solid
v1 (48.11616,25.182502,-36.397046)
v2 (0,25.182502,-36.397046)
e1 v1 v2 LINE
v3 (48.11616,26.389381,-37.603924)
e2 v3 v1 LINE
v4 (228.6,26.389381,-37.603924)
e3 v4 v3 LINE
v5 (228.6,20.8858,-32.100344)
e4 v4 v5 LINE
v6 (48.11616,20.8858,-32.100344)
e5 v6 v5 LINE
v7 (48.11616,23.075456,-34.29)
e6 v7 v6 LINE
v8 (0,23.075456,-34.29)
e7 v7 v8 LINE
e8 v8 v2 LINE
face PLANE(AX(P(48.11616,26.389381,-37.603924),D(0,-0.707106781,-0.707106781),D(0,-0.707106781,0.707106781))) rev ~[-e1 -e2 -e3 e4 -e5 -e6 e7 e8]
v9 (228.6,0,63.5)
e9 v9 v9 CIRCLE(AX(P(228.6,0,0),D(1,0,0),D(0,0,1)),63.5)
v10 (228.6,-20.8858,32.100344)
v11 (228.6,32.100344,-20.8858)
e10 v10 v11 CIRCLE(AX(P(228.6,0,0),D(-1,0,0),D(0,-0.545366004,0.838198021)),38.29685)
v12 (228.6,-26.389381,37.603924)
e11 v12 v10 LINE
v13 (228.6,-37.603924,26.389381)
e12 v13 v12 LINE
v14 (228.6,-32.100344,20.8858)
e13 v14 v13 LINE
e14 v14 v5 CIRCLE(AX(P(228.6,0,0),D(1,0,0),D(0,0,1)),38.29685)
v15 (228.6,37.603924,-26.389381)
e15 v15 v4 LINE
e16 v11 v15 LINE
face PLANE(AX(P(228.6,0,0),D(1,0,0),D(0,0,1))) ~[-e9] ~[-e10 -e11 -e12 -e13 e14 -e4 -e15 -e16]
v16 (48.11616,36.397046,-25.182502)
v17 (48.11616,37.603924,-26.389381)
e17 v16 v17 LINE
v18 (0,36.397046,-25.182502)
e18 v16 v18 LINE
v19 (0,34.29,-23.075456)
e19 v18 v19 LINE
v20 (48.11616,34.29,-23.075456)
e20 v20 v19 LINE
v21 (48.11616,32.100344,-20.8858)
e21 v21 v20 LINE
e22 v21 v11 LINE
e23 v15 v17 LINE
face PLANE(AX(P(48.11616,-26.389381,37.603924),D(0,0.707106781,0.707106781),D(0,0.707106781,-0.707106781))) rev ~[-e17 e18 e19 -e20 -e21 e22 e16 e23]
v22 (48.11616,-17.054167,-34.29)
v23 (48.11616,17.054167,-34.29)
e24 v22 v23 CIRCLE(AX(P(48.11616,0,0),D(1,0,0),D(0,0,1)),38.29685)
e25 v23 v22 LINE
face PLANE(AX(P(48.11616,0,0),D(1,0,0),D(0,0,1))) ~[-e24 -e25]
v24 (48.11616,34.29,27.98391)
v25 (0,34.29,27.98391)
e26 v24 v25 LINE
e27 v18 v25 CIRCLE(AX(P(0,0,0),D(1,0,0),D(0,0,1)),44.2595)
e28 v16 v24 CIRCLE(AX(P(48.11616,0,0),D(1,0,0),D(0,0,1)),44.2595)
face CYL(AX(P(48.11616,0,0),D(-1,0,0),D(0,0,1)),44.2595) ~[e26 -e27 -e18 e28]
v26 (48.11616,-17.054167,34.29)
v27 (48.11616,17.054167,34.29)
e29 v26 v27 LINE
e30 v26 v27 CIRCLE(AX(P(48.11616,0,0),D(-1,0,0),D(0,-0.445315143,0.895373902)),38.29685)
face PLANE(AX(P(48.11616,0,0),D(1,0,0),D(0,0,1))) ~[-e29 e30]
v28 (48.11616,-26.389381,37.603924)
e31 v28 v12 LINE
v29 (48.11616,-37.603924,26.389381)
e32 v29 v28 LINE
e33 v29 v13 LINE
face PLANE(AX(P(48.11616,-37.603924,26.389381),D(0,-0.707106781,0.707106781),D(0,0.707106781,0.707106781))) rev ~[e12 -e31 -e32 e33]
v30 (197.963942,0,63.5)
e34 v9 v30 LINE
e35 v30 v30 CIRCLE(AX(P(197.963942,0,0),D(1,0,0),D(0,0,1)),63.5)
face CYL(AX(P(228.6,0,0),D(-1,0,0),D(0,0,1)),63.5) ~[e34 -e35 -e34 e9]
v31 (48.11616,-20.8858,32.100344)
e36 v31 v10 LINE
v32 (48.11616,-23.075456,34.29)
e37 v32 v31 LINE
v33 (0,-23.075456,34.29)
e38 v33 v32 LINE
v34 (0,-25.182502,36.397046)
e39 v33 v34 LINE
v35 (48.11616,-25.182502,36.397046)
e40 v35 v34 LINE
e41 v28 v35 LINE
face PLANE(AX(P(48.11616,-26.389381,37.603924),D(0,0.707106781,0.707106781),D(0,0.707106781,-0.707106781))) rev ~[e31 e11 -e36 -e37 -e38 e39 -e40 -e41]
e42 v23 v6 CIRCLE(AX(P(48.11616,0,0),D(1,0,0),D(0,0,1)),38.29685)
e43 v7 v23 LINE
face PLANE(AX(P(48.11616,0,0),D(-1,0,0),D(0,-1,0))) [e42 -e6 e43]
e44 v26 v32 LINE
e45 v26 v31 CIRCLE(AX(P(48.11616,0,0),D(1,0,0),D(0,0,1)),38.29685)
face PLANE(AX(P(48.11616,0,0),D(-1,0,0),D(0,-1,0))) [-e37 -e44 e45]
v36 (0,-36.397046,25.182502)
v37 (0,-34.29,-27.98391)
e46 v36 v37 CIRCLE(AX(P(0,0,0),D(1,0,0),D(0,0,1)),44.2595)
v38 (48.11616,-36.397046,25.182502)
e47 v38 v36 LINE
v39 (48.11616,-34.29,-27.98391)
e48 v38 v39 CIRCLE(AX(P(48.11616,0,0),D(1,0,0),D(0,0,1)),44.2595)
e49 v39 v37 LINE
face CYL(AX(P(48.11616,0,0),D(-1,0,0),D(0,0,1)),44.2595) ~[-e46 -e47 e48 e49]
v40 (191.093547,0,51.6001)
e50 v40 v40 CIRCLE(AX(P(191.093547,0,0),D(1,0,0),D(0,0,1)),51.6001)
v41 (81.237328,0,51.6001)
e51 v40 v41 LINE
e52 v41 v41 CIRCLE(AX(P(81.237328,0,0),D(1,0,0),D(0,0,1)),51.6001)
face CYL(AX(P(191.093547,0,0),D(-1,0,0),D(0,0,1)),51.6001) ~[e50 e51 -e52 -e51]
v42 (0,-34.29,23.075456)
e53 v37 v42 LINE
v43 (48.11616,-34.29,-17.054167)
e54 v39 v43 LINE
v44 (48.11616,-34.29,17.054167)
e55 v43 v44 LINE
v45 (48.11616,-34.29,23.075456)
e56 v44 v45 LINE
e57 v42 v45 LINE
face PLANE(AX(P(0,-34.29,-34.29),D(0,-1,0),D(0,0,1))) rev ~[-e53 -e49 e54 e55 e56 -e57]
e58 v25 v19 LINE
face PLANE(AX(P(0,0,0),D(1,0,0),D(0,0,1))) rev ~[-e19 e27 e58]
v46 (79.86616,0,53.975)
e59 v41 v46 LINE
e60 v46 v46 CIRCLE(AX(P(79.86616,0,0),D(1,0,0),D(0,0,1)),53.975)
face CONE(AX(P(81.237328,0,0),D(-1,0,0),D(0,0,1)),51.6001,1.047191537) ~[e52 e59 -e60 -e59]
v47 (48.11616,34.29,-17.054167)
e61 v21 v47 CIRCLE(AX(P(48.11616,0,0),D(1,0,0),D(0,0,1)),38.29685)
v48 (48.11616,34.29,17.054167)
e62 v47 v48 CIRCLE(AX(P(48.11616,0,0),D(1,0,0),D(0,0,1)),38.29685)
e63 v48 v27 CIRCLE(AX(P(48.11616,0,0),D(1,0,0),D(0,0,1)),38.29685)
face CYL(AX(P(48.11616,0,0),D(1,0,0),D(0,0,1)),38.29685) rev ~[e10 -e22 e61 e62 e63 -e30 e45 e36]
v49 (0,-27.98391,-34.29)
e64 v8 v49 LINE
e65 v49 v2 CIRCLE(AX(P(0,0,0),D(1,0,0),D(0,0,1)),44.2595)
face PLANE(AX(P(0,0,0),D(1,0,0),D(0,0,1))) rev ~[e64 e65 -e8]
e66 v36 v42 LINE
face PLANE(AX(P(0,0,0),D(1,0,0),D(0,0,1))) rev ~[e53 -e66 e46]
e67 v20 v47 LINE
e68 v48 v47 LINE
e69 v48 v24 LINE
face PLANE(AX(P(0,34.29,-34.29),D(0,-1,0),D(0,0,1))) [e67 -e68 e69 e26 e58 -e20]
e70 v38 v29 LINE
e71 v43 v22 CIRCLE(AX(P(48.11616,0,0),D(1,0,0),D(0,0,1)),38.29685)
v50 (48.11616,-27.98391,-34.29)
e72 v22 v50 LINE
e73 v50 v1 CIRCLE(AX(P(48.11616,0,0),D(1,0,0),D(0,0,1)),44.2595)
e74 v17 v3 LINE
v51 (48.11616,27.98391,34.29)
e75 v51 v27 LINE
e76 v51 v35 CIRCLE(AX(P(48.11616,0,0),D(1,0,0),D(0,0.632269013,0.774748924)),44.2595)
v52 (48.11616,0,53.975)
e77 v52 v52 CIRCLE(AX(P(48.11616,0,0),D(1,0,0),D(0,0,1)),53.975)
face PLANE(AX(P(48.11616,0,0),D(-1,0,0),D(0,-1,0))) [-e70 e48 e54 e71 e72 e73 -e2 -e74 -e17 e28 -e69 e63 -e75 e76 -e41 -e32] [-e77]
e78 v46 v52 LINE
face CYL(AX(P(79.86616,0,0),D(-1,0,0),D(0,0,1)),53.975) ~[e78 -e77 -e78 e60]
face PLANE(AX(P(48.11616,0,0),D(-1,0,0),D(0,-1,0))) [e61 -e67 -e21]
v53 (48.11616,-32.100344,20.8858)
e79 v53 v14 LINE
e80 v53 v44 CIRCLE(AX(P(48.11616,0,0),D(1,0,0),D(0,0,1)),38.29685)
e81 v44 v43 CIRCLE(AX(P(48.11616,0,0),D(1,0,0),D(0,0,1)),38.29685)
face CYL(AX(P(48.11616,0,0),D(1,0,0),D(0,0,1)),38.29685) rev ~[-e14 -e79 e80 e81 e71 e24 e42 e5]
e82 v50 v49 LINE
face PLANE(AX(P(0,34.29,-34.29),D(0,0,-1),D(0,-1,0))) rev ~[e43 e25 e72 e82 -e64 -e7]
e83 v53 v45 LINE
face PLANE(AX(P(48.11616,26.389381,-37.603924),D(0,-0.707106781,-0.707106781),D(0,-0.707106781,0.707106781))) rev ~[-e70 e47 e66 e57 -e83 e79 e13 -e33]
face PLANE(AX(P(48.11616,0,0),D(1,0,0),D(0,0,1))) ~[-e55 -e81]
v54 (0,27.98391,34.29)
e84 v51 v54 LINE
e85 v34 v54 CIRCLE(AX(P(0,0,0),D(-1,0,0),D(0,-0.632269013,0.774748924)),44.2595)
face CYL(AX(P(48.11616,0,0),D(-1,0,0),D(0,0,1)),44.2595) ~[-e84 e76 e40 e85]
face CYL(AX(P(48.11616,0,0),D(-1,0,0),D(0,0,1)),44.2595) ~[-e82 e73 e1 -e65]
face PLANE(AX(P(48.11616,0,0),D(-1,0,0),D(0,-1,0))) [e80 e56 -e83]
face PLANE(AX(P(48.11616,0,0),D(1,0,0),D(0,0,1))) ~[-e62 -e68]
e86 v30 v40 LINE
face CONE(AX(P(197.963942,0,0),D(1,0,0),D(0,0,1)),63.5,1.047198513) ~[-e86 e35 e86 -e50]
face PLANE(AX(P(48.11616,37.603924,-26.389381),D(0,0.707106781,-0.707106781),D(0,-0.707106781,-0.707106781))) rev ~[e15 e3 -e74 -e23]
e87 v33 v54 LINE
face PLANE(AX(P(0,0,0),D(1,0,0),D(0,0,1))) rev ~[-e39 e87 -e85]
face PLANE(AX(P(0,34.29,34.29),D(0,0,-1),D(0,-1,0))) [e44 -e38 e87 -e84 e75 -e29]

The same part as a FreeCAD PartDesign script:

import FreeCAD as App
import Part
import Sketcher

V = App.Vector
Q = App.Units.Quantity


def add_polygon(sketch, points):
    """Adds a closed chain of lines whose ends are joined by coincident constraints."""
    first, n = sketch.GeometryCount, len(points)
    for a, b in zip(points, points[1:] + points[:1]):
        sketch.addGeometry(Part.LineSegment(App.Vector(*a, 0), App.Vector(*b, 0)), False)
    for i in range(n):
        sketch.addConstraint(Sketcher.Constraint("Coincident", first + i, 2, first + (i + 1) % n, 1))

doc = App.newDocument("Part")
body = doc.addObject("PartDesign::Body", "Body")

sketch1 = body.newObject("Sketcher::SketchObject", "Sketch")
sketch1.AttachmentSupport = (doc.getObject("XZ_Plane"), [""])
sketch1.MapMode = "FlatFace"
add_polygon(sketch1, [(228.6, 38.3), (228.6, 63.5), (198, 63.5), (191.1, 51.6), (81.2, 51.6), (79.9, 54), (48.1, 54), (48.1, 44.3), (0, 44.3), (0, 34.3), (48.1, 34.3), (48.1, 38.3)])
sketch1.addConstraint(Sketcher.Constraint("Vertical", 0))
sketch1.addConstraint(Sketcher.Constraint("Horizontal", 1))
sketch1.addConstraint(Sketcher.Constraint("Horizontal", 3))
sketch1.addConstraint(Sketcher.Constraint("Horizontal", 5))
sketch1.addConstraint(Sketcher.Constraint("Vertical", 6))
sketch1.addConstraint(Sketcher.Constraint("Horizontal", 7))
sketch1.addConstraint(Sketcher.Constraint("Vertical", 8))
sketch1.addConstraint(Sketcher.Constraint("Horizontal", 9))
sketch1.addConstraint(Sketcher.Constraint("Vertical", 10))
sketch1.addConstraint(Sketcher.Constraint("Horizontal", 11))
sketch1.addConstraint(Sketcher.Constraint("PointOnObject", 7, 2, -2))
sketch1.addConstraint(Sketcher.Constraint("Vertical", 6, 2, 9, 2))
sketch1.addConstraint(Sketcher.Constraint("DistanceX", -1, 1, 0, 2, Q("9 in")))
sketch1.addConstraint(Sketcher.Constraint("DistanceX", 5, 2, 5, 1, Q("1.25 in")))
sketch1.addConstraint(Sketcher.Constraint("DistanceY", -1, 1, 0, 2, Q("2.5 in")))
sketch1.addConstraint(Sketcher.Constraint("DistanceY", -1, 1, 8, 2, Q("1.35 in")))
sketch1.addConstraint(Sketcher.Constraint("DistanceY", 6, 2, 6, 1, Q("0.3825 in")))
sketch1.addConstraint(Sketcher.Constraint("DistanceY", 8, 2, 8, 1, Q("0.3925 in")))
sketch1.addConstraint(Sketcher.Constraint("DistanceY", 6, 2, 3, 2, Q("0.289 in")))
sketch1.addConstraint(Sketcher.Constraint("DistanceX", 3, 2, 3, 1, 109.856219))
sketch1.addConstraint(Sketcher.Constraint("DistanceX", 7, 2, 7, 1, 48.11616))
sketch1.addConstraint(Sketcher.Constraint("DistanceY", 0, 1, 0, 2, 25.20315))
sketch1.addConstraint(Sketcher.Constraint("DistanceX", 1, 2, 1, 1, 30.636058))
sketch1.addConstraint(Sketcher.Constraint("DistanceX", -1, 1, 3, 2, 81.237328))
revolution = body.newObject("PartDesign::Revolution", "Revolution")
revolution.Profile = sketch1
revolution.ReferenceAxis = (sketch1, ["H_Axis"])
revolution.Angle = 360

sketch2 = body.newObject("Sketcher::SketchObject", "Sketch001")
sketch2.AttachmentSupport = (doc.getObject("YZ_Plane"), [""])
sketch2.MapMode = "FlatFace"
add_polygon(sketch2, [(34, 34), (34, -34), (-34, -34), (-34, 34)])
sketch2.addConstraint(Sketcher.Constraint("Vertical", 0))
sketch2.addConstraint(Sketcher.Constraint("Horizontal", 1))
sketch2.addConstraint(Sketcher.Constraint("Vertical", 2))
sketch2.addConstraint(Sketcher.Constraint("Horizontal", 3))
sketch2.addConstraint(Sketcher.Constraint("Symmetric", 0, 2, 2, 2, -1, 1))
sketch2.addConstraint(Sketcher.Constraint("Equal", 3, 0))
sketch2.addConstraint(Sketcher.Constraint("DistanceX", 1, 2, 1, 1, Q("2.7 in")))
pocket1 = body.newObject("PartDesign::Pocket", "Pocket")
pocket1.Profile = sketch2
pocket1.Length = 48.11616
pocket1.Reversed = True

sketch3 = body.newObject("Sketcher::SketchObject", "Sketch002")
sketch3.AttachmentSupport = (doc.getObject("YZ_Plane"), [""])
sketch3.MapMode = "FlatFace"
sketch3.AttachmentOffset = App.Placement(V(0, 0, 48.11616), App.Rotation())
add_polygon(sketch3, [(-26, 38), (38, -26), (26, -38), (-38, 26)])
sketch3.addConstraint(Sketcher.Constraint("Symmetric", 0, 2, 2, 2, -1, 1))
sketch3.addConstraint(Sketcher.Constraint("Symmetric", 1, 2, 3, 2, -1, 1))
sketch3.addConstraint(Sketcher.Constraint("Perpendicular", 0, 1))
sketch3.addConstraint(Sketcher.Constraint("Angle", 0, Q("-45 deg")))
sketch3.addConstraint(Sketcher.Constraint("Distance", 0, Q("3.563 in")))
sketch3.addConstraint(Sketcher.Constraint("Distance", 1, Q("0.6244 in")))
pocket2 = body.newObject("PartDesign::Pocket", "Pocket001")
pocket2.Profile = sketch3
pocket2.Length = Q("16 in")
pocket2.Midplane = True

doc.recompute()
